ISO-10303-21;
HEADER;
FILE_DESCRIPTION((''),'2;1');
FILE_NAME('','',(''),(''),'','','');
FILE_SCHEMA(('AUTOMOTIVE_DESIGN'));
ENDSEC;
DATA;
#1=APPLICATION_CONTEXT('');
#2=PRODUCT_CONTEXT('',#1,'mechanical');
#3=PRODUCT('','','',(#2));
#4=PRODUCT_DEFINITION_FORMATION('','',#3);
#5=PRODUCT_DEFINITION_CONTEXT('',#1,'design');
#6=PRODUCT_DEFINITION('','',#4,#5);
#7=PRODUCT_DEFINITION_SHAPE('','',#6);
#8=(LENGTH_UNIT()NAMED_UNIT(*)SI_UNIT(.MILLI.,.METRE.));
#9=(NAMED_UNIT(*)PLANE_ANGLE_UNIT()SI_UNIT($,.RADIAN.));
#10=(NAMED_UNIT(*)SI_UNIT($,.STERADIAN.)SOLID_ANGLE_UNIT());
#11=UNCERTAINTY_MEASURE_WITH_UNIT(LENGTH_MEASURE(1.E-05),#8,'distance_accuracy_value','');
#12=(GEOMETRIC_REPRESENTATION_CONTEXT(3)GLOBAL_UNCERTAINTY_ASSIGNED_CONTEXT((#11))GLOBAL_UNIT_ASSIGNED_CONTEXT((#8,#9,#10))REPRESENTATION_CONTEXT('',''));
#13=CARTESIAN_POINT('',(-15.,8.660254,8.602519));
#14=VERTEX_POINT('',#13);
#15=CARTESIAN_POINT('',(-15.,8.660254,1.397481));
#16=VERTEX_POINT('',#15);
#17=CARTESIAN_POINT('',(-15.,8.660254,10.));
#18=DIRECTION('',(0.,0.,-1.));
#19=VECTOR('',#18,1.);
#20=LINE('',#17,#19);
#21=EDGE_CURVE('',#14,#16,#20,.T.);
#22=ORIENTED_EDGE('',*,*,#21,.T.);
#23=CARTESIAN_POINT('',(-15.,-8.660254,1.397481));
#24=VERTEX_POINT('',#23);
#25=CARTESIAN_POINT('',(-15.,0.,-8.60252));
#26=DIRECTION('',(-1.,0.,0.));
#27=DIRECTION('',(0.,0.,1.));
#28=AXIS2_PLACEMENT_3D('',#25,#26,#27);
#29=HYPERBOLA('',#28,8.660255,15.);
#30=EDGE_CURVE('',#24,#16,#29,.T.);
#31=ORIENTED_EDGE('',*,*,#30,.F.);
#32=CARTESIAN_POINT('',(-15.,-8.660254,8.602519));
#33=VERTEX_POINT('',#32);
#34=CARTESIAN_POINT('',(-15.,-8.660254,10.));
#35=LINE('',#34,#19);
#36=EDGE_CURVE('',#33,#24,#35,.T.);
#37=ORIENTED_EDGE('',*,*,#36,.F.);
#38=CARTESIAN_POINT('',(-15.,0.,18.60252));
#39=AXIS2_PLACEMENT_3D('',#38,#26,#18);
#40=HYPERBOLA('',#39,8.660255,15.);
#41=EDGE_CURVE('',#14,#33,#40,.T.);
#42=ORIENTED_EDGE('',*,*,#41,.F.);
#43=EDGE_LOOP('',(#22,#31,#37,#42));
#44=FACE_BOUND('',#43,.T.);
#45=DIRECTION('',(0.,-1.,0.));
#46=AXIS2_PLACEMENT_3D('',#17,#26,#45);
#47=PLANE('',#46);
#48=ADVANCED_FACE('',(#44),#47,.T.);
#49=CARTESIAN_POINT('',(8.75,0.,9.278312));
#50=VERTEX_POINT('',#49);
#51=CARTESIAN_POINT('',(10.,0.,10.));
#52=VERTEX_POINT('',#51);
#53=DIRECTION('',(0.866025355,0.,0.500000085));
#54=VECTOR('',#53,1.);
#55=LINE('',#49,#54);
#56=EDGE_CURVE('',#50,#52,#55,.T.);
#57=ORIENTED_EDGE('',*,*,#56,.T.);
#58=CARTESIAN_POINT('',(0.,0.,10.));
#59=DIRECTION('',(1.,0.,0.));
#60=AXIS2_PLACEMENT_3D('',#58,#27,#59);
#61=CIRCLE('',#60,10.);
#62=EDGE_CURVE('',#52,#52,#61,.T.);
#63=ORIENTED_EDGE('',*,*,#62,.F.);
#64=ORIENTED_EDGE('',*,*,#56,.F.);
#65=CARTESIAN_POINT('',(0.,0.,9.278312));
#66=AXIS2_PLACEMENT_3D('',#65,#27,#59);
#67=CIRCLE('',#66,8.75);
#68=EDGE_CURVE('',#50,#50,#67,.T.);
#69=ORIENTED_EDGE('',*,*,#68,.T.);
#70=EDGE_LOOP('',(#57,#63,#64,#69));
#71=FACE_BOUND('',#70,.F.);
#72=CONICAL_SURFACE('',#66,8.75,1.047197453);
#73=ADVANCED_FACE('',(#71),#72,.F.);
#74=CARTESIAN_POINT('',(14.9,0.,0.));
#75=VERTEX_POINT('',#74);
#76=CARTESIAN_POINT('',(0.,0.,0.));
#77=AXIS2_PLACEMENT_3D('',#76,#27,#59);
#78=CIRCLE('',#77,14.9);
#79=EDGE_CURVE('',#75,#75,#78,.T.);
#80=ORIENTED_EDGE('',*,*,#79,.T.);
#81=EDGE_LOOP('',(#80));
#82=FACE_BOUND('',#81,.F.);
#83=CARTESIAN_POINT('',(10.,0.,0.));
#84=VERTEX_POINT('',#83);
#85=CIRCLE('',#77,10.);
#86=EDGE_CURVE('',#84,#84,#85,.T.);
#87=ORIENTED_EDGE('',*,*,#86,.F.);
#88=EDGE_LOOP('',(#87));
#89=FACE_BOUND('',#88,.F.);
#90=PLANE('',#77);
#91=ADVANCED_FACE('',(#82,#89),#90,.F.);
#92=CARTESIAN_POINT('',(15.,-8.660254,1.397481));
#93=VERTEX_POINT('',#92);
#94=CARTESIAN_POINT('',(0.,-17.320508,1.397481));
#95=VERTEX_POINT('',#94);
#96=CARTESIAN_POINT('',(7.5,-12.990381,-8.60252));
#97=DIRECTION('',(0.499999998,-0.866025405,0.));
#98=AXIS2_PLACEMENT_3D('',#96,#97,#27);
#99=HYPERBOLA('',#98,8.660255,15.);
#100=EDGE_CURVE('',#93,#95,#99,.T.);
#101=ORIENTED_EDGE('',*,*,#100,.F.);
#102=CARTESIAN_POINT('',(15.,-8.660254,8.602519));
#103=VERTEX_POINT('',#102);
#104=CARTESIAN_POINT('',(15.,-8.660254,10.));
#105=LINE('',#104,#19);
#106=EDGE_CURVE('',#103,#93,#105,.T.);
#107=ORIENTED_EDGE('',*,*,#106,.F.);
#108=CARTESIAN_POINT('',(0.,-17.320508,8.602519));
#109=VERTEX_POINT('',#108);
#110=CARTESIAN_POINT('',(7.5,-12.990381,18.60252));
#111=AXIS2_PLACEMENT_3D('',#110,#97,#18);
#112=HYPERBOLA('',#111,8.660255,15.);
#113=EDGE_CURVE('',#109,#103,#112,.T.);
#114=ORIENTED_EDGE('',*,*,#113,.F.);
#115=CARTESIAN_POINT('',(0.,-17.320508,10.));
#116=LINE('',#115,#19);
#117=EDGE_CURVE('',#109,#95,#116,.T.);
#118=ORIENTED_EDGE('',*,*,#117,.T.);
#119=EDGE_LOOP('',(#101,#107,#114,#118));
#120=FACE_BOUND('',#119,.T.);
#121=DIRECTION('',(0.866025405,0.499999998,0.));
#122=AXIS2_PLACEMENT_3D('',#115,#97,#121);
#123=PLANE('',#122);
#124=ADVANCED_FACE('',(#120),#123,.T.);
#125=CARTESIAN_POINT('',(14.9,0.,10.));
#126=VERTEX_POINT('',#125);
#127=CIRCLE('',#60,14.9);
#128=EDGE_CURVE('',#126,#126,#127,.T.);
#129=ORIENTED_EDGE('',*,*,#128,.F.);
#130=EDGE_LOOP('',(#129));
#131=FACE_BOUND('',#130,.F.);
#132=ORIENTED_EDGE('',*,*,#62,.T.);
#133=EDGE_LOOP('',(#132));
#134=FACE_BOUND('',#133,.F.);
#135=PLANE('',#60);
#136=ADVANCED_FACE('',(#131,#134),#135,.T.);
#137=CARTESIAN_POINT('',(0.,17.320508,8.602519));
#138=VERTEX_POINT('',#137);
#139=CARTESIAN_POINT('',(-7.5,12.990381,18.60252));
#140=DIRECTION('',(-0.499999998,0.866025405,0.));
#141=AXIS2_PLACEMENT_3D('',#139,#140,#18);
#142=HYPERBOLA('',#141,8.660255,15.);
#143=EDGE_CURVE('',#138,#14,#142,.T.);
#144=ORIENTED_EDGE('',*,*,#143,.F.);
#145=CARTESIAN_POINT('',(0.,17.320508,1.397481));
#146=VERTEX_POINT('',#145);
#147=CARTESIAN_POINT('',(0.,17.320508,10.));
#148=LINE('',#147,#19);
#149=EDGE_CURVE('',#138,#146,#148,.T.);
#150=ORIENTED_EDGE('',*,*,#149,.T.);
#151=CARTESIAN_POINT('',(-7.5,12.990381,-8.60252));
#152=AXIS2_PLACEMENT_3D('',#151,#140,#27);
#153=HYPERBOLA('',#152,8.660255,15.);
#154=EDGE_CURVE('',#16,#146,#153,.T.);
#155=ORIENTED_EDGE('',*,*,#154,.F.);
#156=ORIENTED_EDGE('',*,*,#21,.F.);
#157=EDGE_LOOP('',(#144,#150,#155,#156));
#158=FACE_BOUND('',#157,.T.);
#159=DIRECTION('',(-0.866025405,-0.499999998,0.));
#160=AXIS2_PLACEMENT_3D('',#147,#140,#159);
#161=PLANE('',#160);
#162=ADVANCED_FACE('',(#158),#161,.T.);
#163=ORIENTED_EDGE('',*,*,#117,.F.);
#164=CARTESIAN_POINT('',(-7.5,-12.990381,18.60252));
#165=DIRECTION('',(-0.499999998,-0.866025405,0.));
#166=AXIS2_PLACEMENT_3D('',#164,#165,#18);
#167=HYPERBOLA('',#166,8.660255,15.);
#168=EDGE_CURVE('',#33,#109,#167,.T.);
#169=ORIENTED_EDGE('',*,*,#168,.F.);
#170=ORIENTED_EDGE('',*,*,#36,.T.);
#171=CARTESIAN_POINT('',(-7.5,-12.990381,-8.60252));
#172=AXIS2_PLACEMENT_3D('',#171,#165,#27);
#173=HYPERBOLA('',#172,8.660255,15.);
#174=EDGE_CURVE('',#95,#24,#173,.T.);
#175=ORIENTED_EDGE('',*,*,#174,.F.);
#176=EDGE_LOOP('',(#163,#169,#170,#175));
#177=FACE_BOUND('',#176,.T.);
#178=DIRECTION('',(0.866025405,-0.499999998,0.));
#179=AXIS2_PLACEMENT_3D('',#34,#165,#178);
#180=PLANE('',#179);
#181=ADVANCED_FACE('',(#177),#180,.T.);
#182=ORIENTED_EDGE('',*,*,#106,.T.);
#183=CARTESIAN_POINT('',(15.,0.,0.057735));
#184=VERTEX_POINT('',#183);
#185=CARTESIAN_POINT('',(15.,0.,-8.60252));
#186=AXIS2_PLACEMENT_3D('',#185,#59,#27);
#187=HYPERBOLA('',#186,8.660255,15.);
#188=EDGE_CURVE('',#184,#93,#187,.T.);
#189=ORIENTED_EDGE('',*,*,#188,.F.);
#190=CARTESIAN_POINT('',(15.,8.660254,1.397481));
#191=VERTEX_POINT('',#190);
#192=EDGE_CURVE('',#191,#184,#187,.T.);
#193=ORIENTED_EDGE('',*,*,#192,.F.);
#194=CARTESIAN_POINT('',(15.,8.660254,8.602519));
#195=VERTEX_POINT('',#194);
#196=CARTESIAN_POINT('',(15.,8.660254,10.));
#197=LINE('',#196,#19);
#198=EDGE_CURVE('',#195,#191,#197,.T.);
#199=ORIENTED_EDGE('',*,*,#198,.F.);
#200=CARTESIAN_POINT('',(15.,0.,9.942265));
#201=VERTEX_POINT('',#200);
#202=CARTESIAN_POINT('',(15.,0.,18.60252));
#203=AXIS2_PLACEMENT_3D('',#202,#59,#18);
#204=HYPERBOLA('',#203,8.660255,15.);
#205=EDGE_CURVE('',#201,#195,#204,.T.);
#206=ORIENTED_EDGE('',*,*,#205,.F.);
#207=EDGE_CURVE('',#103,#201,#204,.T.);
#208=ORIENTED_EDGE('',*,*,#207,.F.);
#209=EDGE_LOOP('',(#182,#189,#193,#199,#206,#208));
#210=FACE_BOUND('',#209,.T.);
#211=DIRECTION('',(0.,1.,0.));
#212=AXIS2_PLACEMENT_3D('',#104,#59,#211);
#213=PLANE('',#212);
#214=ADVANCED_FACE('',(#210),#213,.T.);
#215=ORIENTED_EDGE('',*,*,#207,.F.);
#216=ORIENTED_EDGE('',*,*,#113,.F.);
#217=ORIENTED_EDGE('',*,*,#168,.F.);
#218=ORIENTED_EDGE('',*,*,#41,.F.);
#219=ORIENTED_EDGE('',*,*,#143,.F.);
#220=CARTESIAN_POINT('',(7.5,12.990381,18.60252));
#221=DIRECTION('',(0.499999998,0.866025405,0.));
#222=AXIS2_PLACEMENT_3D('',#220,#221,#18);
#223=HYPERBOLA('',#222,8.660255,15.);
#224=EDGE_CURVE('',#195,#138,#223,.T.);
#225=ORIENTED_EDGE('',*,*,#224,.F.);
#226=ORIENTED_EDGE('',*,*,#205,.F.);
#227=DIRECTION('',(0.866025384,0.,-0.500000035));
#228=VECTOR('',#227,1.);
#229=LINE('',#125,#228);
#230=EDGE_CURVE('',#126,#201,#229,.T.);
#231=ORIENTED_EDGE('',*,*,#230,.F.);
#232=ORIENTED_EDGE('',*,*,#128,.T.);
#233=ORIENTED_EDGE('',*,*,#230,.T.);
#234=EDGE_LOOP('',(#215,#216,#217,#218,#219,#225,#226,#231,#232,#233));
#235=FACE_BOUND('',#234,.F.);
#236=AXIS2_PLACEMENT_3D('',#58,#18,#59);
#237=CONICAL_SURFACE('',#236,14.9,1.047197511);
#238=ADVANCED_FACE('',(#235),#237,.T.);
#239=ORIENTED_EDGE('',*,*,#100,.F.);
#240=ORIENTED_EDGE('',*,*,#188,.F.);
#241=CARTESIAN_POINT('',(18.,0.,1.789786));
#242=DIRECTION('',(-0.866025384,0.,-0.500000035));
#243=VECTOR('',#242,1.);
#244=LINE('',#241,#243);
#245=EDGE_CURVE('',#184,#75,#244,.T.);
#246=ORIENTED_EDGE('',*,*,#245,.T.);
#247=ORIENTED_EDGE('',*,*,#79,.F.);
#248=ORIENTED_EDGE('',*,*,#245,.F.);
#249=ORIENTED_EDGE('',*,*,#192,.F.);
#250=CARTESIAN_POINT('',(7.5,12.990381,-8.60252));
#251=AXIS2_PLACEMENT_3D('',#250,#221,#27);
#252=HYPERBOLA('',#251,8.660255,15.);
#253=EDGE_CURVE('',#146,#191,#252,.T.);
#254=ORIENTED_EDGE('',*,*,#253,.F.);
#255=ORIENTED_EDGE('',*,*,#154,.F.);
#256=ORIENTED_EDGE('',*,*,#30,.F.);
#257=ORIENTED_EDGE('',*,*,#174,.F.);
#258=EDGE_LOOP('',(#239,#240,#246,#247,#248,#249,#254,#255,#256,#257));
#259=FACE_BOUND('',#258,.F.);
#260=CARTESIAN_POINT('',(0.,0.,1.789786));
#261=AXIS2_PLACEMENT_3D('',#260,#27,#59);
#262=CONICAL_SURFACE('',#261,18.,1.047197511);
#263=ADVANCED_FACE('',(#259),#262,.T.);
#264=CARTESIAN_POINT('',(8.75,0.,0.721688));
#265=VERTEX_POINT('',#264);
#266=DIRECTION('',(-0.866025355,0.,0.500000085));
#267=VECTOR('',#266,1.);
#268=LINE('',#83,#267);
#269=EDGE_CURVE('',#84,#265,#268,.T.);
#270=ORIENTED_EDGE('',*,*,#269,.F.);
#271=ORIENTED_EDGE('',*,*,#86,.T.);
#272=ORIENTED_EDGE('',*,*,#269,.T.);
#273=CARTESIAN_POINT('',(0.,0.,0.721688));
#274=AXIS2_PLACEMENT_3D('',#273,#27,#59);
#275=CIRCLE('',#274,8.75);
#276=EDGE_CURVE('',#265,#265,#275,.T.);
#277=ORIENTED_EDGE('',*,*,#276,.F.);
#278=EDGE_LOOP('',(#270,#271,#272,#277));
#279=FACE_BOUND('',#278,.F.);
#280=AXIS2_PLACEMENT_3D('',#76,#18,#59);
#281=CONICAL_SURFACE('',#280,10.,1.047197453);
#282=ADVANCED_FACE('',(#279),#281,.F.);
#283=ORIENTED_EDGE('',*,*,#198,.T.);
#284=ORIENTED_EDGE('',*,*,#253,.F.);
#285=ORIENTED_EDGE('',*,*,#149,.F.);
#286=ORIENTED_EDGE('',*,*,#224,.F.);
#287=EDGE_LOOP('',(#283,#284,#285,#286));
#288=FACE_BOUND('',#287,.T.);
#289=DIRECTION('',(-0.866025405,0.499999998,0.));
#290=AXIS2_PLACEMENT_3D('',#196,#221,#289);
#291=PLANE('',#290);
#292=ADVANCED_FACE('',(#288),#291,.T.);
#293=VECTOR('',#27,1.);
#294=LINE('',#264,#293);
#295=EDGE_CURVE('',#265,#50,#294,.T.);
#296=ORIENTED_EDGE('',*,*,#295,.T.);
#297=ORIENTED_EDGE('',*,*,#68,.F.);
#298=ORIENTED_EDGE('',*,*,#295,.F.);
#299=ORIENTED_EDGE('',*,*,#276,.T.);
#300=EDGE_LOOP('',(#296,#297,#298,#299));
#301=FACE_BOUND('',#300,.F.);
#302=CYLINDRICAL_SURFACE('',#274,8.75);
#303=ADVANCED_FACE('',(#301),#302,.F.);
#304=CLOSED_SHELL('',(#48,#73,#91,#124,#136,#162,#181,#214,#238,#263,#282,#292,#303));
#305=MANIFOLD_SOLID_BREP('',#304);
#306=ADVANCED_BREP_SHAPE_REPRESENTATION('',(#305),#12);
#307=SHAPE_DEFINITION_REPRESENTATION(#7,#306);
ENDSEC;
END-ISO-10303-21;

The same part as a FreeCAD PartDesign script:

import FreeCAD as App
import Part
import Sketcher

V = App.Vector
Q = App.Units.Quantity

doc = App.newDocument("Part")
body = doc.addObject("PartDesign::Body", "Body")

# Sketch on XZ plane
sketch1 = body.newObject("Sketcher::SketchObject", "Sketch")
sketch1.AttachmentSupport = (doc.getObject("XZ_Plane"), [""])
sketch1.MapMode = "FlatFace"
sketch1.addGeometry([
    Part.LineSegment(V(8.8, 0.7, 0), V(10, 0, 0)),  # 0
    Part.LineSegment(V(10, 0, 0), V(14.9, 0, 0)),  # 1
    Part.LineSegment(V(14.9, 0, 0), V(18, 1.8, 0)),  # 2
    Part.LineSegment(V(18, 1.8, 0), V(18, 8.2, 0)),  # 3
    Part.LineSegment(V(18, 8.2, 0), V(14.9, 10, 0)),  # 4
    Part.LineSegment(V(14.9, 10, 0), V(10, 10, 0)),  # 5
    Part.LineSegment(V(10, 10, 0), V(8.8, 9.3, 0)),  # 6
    Part.LineSegment(V(8.8, 9.3, 0), V(8.8, 0.7, 0)),  # 7
], False)
sketch1.addConstraint([
    Sketcher.Constraint("Coincident", 0, 2, 1, 1),
    Sketcher.Constraint("Coincident", 1, 2, 2, 1),
    Sketcher.Constraint("Coincident", 2, 2, 3, 1),
    Sketcher.Constraint("Coincident", 3, 2, 4, 1),
    Sketcher.Constraint("Coincident", 4, 2, 5, 1),
    Sketcher.Constraint("Coincident", 5, 2, 6, 1),
    Sketcher.Constraint("Coincident", 6, 2, 7, 1),
    Sketcher.Constraint("Coincident", 7, 2, 0, 1),
    Sketcher.Constraint("Horizontal", 1),
    Sketcher.Constraint("Vertical", 3),
    Sketcher.Constraint("Horizontal", 5),
    Sketcher.Constraint("Vertical", 7),
    Sketcher.Constraint("PointOnObject", 0, 2, -1),
    Sketcher.Constraint("Parallel", 0, 4),
    Sketcher.Constraint("Parallel", 2, 6),
    Sketcher.Constraint("Vertical", 1, 2, 4, 2),
    Sketcher.Constraint("Vertical", 0, 2, 5, 2),
    Sketcher.Constraint("Equal", 2, 4),
    Sketcher.Constraint("Angle", 0, Q("-30.000006 deg")),
    Sketcher.Constraint("DistanceX", 1, 1, 1, 2, 4.9),
    Sketcher.Constraint("DistanceX", -1, 1, 0, 2, 10.0),
    Sketcher.Constraint("DistanceX", -1, 1, 2, 2, 18.0),
    Sketcher.Constraint("DistanceY", -1, 1, 4, 2, 10.0),
    Sketcher.Constraint("DistanceX", -1, 1, 6, 2, 8.75),
])
revolution = body.newObject("PartDesign::Revolution", "Revolution")
revolution.Profile = sketch1
revolution.ReferenceAxis = (sketch1, ["V_Axis"])
revolution.Angle = 360

# Sketch on XY plane
sketch2 = body.newObject("Sketcher::SketchObject", "Sketch001")
sketch2.AttachmentSupport = (doc.getObject("XY_Plane"), [""])
sketch2.MapMode = "FlatFace"
sketch2.AttachmentOffset = App.Placement(V(0, 0, 10), App.Rotation())
sketch2.addGeometry([
    Part.Circle(V(0, 0, 0), V(0, 0, 1), 18),  # 0
    Part.LineSegment(V(15, 9, 0), V(15, -9, 0)),  # 1
    Part.LineSegment(V(15, -9, 0), V(0, -17, 0)),  # 2
    Part.LineSegment(V(0, -17, 0), V(-15, -9, 0)),  # 3
    Part.LineSegment(V(-15, -9, 0), V(-15, 9, 0)),  # 4
    Part.LineSegment(V(-15, 9, 0), V(0, 17, 0)),  # 5
    Part.LineSegment(V(0, 17, 0), V(15, 9, 0)),  # 6
], False)
sketch2.addConstraint([
    Sketcher.Constraint("Coincident", 1, 2, 2, 1),
    Sketcher.Constraint("Coincident", 2, 2, 3, 1),
    Sketcher.Constraint("Coincident", 3, 2, 4, 1),
    Sketcher.Constraint("Coincident", 4, 2, 5, 1),
    Sketcher.Constraint("Coincident", 5, 2, 6, 1),
    Sketcher.Constraint("Coincident", 6, 2, 1, 1),
    Sketcher.Constraint("Vertical", 1),
    Sketcher.Constraint("Vertical", 4),
    Sketcher.Constraint("Coincident", 0, 3, -1, 1),
    Sketcher.Constraint("Symmetric", 1, 2, 4, 2, -1, 1),
    Sketcher.Constraint("Symmetric", 2, 2, 5, 2, -1, 1),
    Sketcher.Constraint("PointOnObject", 2, 2, -2),
    Sketcher.Constraint("Parallel", 3, 6),
    Sketcher.Constraint("Horizontal", 1, 2, 3, 2),
    Sketcher.Constraint("Diameter", 0, 36.0),
    Sketcher.Constraint("Angle", 2, Q("-150 deg")),
    Sketcher.Constraint("DistanceX", -1, 1, 1, 2, 15.0),
    Sketcher.Constraint("DistanceY", 1, 2, 1, 1, 17.320508),
])
pocket1 = body.newObject("PartDesign::Pocket", "Pocket")
pocket1.Profile = sketch2
pocket1.Length = 10

doc.recompute()
